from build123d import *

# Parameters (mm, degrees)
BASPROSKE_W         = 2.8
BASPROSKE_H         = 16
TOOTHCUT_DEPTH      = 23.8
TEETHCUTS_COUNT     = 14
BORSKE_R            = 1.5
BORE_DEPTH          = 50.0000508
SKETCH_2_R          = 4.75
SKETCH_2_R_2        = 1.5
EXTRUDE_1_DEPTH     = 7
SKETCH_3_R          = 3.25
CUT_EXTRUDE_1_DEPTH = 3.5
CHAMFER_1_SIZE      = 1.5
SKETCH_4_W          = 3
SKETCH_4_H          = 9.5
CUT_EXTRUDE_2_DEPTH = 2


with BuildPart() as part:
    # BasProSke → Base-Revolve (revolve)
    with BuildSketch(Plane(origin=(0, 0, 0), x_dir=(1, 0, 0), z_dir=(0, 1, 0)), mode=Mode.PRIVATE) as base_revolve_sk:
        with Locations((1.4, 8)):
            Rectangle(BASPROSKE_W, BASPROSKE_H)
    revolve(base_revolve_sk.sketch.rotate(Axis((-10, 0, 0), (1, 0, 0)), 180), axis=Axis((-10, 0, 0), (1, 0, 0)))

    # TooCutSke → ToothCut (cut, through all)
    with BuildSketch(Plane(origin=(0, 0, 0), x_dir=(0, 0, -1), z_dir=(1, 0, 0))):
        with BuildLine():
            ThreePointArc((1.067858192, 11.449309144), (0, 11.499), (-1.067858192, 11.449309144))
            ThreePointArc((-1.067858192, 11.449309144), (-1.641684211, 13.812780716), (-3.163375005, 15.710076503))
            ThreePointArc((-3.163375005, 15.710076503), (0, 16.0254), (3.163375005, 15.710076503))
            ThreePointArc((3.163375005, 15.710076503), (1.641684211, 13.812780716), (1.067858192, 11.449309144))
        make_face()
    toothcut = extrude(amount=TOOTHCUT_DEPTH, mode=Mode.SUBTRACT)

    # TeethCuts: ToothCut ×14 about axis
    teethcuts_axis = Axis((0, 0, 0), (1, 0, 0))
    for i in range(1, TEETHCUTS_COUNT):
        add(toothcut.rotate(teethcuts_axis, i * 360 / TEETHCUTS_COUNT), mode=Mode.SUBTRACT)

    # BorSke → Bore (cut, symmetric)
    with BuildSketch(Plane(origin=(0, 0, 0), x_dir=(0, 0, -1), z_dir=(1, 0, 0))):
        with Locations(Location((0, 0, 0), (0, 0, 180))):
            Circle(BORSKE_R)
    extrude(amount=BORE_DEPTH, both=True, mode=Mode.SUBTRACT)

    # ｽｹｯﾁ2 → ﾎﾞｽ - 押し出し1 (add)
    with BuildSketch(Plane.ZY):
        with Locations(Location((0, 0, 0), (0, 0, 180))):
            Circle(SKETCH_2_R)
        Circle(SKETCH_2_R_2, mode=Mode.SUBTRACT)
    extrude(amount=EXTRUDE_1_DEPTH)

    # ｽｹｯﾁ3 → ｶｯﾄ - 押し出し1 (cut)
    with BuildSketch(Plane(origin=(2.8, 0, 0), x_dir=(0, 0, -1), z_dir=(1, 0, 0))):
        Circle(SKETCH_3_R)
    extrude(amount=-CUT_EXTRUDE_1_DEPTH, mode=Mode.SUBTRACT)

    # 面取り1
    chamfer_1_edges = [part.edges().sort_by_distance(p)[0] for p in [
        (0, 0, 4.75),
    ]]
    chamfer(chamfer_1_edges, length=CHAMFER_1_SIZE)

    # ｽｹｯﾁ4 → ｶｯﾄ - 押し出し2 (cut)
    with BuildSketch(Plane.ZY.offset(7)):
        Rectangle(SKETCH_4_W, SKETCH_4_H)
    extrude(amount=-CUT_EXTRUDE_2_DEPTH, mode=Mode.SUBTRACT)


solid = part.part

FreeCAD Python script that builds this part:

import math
import FreeCAD as App
import Part
import Sketcher

V = App.Vector
Q = App.Units.Quantity


def edges_at(feature, points):
    """Names of the edges that pass closest to the given points."""
    edges = feature.Shape.Edges
    near = lambda p: min(range(len(edges)), key=lambda i: edges[i].distToShape(Part.Vertex(*p))[0])
    return sorted({f"Edge{near(p) + 1}" for p in points})

doc = App.newDocument("Part")
body = doc.addObject("PartDesign::Body", "Body")

# Sketch on XZ plane
sketch1 = body.newObject("Sketcher::SketchObject", "Sketch")
sketch1.AttachmentSupport = (doc.getObject("XZ_Plane"), [""])
sketch1.MapMode = "FlatFace"
sketch1.addGeometry([
    Part.LineSegment(V(0, -16, 0), V(0, 0, 0)),
    Part.LineSegment(V(0, 0, 0), V(2.8, 0, 0)),
    Part.LineSegment(V(2.8, 0, 0), V(2.8, -16, 0)),
    Part.LineSegment(V(2.8, -16, 0), V(0, -16, 0)),
], False)
sketch1.addConstraint([
    Sketcher.Constraint("Coincident", 0, 2, 1, 1),
    Sketcher.Constraint("Coincident", 1, 2, 2, 1),
    Sketcher.Constraint("Coincident", 2, 2, 3, 1),
    Sketcher.Constraint("Coincident", 3, 2, 0, 1),
    Sketcher.Constraint("Vertical", 0),
    Sketcher.Constraint("Horizontal", 1),
    Sketcher.Constraint("Vertical", 2),
    Sketcher.Constraint("Horizontal", 3),
    Sketcher.Constraint("Coincident", 0, 2, -1, 1),
    Sketcher.Constraint("DistanceY", 0, 1, 0, 2, Q("16 mm")),
    Sketcher.Constraint("DistanceX", 1, 1, 1, 2, Q("2.8 mm")),
])
revolution = body.newObject("PartDesign::Revolution", "Revolution")
revolution.Profile = sketch1
revolution.ReferenceAxis = (sketch1, ["H_Axis"])
revolution.Angle = 360

# Sketch on YZ plane
sketch2 = body.newObject("Sketcher::SketchObject", "Sketch001")
sketch2.AttachmentSupport = (doc.getObject("YZ_Plane"), [""])
sketch2.MapMode = "FlatFace"
sketch2.addGeometry([
    Part.ArcOfCircle(Part.Circle(V(0, 0, 0), V(0, 0, 1), 11.5), math.radians(-5.33), math.radians(5.33)),
    Part.ArcOfCircle(Part.Circle(V(11.3, -6.7, 0), V(0, 0, 1), 5.6), math.radians(39), math.radians(89)),
    Part.ArcOfCircle(Part.Circle(V(0, 0, 0), V(0, 0, 1), 16), math.radians(-11), math.radians(11)),
    Part.ArcOfCircle(Part.Circle(V(11.3, 6.7, 0), V(0, 0, 1), 5.6), math.radians(-89), math.radians(-39)),
], False)
sketch2.addConstraint([
    Sketcher.Constraint("Coincident", 0, 1, 1, 2),
    Sketcher.Constraint("Coincident", 1, 1, 2, 1),
    Sketcher.Constraint("Coincident", 2, 2, 3, 2),
    Sketcher.Constraint("Coincident", 3, 1, 0, 2),
    Sketcher.Constraint("Coincident", 0, 3, -1, 1),
    Sketcher.Constraint("Coincident", 2, 3, -1, 1),
    Sketcher.Constraint("Equal", 1, 3),
    Sketcher.Constraint("Symmetric", 1, 3, 3, 3, -1),
    Sketcher.Constraint("Radius", 1, Q("5.6 mm")),
    Sketcher.Constraint("Radius", 0, Q("11.499 mm")),
    Sketcher.Constraint("Radius", 2, Q("16.0254 mm")),
    Sketcher.Constraint("DistanceX", -1, 1, 0, 1, Q("11.449309 mm")),
    Sketcher.Constraint("DistanceX", 1, 3, 1, 1, Q("4.36874 mm")),
])
pocket1 = body.newObject("PartDesign::Pocket", "Pocket")
pocket1.Profile = sketch2
pocket1.Type = "ThroughAll"
pocket1.Reversed = True
doc.recompute()

polarpattern = body.newObject("PartDesign::PolarPattern", "PolarPattern")
polarpattern.Originals = [pocket1]
polarpattern.Axis = (doc.getObject("X_Axis"), [""])
polarpattern.Angle = 360
polarpattern.Occurrences = 14
body.Tip = polarpattern

# Sketch on YZ plane
sketch3 = body.newObject("Sketcher::SketchObject", "Sketch002")
sketch3.AttachmentSupport = (doc.getObject("YZ_Plane"), [""])
sketch3.MapMode = "FlatFace"
sketch3.addGeometry(Part.Circle(V(0, 0, 0), V(0, 0, 1), 1.5), False)
sketch3.addConstraint([
    Sketcher.Constraint("Coincident", 0, 3, -1, 1),
    Sketcher.Constraint("Diameter", 0, Q("3 mm")),
])
pocket2 = body.newObject("PartDesign::Pocket", "Pocket001")
pocket2.Profile = sketch3
pocket2.Length = 100.000102
pocket2.Midplane = True

# Sketch on YZ plane
sketch4 = body.newObject("Sketcher::SketchObject", "Sketch003")
sketch4.AttachmentSupport = (doc.getObject("YZ_Plane"), [""])
sketch4.MapMode = "FlatFace"
sketch4.addGeometry([
    Part.Circle(V(0, 0, 0), V(0, 0, 1), 4.8),
    Part.Circle(V(0, 0, 0), V(0, 0, 1), 1.5),
], False)
sketch4.addConstraint([
    Sketcher.Constraint("Coincident", 0, 3, -1, 1),
    Sketcher.Constraint("Coincident", 1, 3, -1, 1),
    Sketcher.Constraint("Diameter", 1, Q("3 mm")),
    Sketcher.Constraint("Diameter", 0, Q("9.5 mm")),
])
pad1 = body.newObject("PartDesign::Pad", "Pad")
pad1.Profile = sketch4
pad1.Length = 7
pad1.Reversed = True

# Sketch on YZ plane
sketch5 = body.newObject("Sketcher::SketchObject", "Sketch004")
sketch5.AttachmentSupport = (doc.getObject("YZ_Plane"), [""])
sketch5.MapMode = "FlatFace"
sketch5.AttachmentOffset = App.Placement(V(0, 0, 2.8), App.Rotation())
sketch5.addGeometry(Part.Circle(V(0, 0, 0), V(0, 0, 1), 3.2), False)
sketch5.addConstraint([
    Sketcher.Constraint("Coincident", 0, 3, -1, 1),
    Sketcher.Constraint("Diameter", 0, Q("6.5 mm")),
])
pocket3 = body.newObject("PartDesign::Pocket", "Pocket002")
pocket3.Profile = sketch5
pocket3.Length = 3.5
doc.recompute()

chamfer = body.newObject("PartDesign::Chamfer", "Chamfer")
chamfer.Base = (pocket3, edges_at(pocket3, [(0, 0, 4.75)]))
chamfer.Size = 1.5

# Sketch on YZ plane
sketch6 = body.newObject("Sketcher::SketchObject", "Sketch005")
sketch6.AttachmentSupport = (doc.getObject("YZ_Plane"), [""])
sketch6.MapMode = "FlatFace"
sketch6.AttachmentOffset = App.Placement(V(0, 0, -7), App.Rotation())
sketch6.addGeometry([
    Part.LineSegment(V(4.8, -1.5, 0), V(-4.8, -1.5, 0)),
    Part.LineSegment(V(-4.8, -1.5, 0), V(-4.8, 1.5, 0)),
    Part.LineSegment(V(-4.8, 1.5, 0), V(4.8, 1.5, 0)),
    Part.LineSegment(V(4.8, 1.5, 0), V(4.8, -1.5, 0)),
], False)
sketch6.addConstraint([
    Sketcher.Constraint("Coincident", 0, 2, 1, 1),
    Sketcher.Constraint("Coincident", 1, 2, 2, 1),
    Sketcher.Constraint("Coincident", 2, 2, 3, 1),
    Sketcher.Constraint("Coincident", 3, 2, 0, 1),
    Sketcher.Constraint("Horizontal", 0),
    Sketcher.Constraint("Vertical", 1),
    Sketcher.Constraint("Horizontal", 2),
    Sketcher.Constraint("Vertical", 3),
    Sketcher.Constraint("Symmetric", 0, 2, 2, 2, -1, 1),
    Sketcher.Constraint("DistanceY", 1, 1, 1, 2, Q("3 mm")),
    Sketcher.Constraint("DistanceX", 0, 2, 0, 1, Q("9.5 mm")),
])
pocket4 = body.newObject("PartDesign::Pocket", "Pocket003")
pocket4.Profile = sketch6
pocket4.Length = 2
pocket4.Reversed = True

doc.recompute()
